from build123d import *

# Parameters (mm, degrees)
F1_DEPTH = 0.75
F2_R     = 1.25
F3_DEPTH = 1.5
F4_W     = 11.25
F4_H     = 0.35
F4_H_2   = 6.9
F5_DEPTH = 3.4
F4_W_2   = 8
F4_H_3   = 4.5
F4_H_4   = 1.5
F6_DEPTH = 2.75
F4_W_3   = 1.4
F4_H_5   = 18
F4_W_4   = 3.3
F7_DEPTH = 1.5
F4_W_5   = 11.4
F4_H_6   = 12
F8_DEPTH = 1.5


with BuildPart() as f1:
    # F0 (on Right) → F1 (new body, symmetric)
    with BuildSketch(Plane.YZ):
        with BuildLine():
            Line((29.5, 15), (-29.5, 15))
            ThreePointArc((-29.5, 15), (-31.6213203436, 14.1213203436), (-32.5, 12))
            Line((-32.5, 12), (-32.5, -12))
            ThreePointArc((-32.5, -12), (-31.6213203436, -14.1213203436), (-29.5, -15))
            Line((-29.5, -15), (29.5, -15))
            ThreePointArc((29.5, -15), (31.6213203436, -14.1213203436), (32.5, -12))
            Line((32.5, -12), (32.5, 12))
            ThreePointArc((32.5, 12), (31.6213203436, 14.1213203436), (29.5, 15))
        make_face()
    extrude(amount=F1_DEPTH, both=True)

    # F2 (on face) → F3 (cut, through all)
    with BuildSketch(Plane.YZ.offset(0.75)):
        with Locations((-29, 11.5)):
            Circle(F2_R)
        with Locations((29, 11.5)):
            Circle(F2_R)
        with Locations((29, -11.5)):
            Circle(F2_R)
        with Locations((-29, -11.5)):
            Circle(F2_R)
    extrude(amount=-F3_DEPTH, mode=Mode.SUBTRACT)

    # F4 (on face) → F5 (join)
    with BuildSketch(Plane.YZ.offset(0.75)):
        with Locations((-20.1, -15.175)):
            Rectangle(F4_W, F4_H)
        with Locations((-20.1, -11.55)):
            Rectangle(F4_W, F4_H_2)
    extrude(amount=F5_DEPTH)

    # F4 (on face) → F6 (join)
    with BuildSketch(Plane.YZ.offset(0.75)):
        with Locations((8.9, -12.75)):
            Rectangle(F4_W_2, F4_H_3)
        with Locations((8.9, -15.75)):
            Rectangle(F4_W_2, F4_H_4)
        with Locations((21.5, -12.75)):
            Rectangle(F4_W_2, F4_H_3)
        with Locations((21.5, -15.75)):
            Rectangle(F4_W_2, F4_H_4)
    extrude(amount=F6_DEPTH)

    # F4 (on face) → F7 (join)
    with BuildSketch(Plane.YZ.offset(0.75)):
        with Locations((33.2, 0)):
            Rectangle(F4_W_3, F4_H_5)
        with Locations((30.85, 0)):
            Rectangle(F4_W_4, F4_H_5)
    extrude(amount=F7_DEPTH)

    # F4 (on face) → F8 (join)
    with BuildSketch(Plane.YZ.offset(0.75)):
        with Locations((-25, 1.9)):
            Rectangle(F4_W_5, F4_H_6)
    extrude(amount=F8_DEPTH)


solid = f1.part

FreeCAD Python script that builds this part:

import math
import FreeCAD as App
import Part
import Sketcher

V = App.Vector
Q = App.Units.Quantity

doc = App.newDocument("Part")
body = doc.addObject("PartDesign::Body", "Body")

# Sketch on YZ plane
sketch1 = body.newObject("Sketcher::SketchObject", "Sketch")
sketch1.AttachmentSupport = (doc.getObject("YZ_Plane"), [""])
sketch1.MapMode = "FlatFace"
sketch1.addGeometry([
    Part.LineSegment(V(29.5, 15, 0), V(-29.5, 15, 0)),  # 0
    Part.ArcOfCircle(Part.Circle(V(-29.5, 12, 0), V(0, 0, 1), 3), math.radians(90), math.radians(180)),  # 1
    Part.LineSegment(V(-32.5, 12, 0), V(-32.5, -12, 0)),  # 2
    Part.ArcOfCircle(Part.Circle(V(-29.5, -12, 0), V(0, 0, 1), 3), math.radians(180), math.radians(270)),  # 3
    Part.LineSegment(V(-29.5, -15, 0), V(29.5, -15, 0)),  # 4
    Part.ArcOfCircle(Part.Circle(V(29.5, -12, 0), V(0, 0, 1), 3), math.radians(-90), math.radians(0)),  # 5
    Part.LineSegment(V(32.5, -12, 0), V(32.5, 12, 0)),  # 6
    Part.ArcOfCircle(Part.Circle(V(29.5, 12, 0), V(0, 0, 1), 3), math.radians(0), math.radians(90)),  # 7
], False)
sketch1.addConstraint([
    Sketcher.Constraint("Tangent", 0, 2, 1, 1),
    Sketcher.Constraint("Tangent", 1, 2, 2, 1),
    Sketcher.Constraint("Tangent", 2, 2, 3, 1),
    Sketcher.Constraint("Tangent", 3, 2, 4, 1),
    Sketcher.Constraint("Tangent", 4, 2, 5, 1),
    Sketcher.Constraint("Tangent", 5, 2, 6, 1),
    Sketcher.Constraint("Tangent", 6, 2, 7, 1),
    Sketcher.Constraint("Tangent", 7, 2, 0, 1),
    Sketcher.Constraint("Horizontal", 0),
    Sketcher.Constraint("Vertical", 2),
    Sketcher.Constraint("Horizontal", 4),
    Sketcher.Constraint("Vertical", 6),
    Sketcher.Constraint("Equal", 1, 3),
    Sketcher.Constraint("Equal", 3, 5),
    Sketcher.Constraint("Equal", 5, 7),
    Sketcher.Constraint("Symmetric", 1, 3, 5, 3, -1, 1),
    Sketcher.Constraint("Radius", 1, Q("3 mm")),
    Sketcher.Constraint("DistanceX", 0, 2, 0, 1, Q("59 mm")),
    Sketcher.Constraint("DistanceY", 2, 2, 2, 1, Q("24 mm")),
])
pad1 = body.newObject("PartDesign::Pad", "Pad")
pad1.Profile = sketch1
pad1.Length = 1.5
pad1.Midplane = True

# Sketch on YZ plane
sketch2 = body.newObject("Sketcher::SketchObject", "Sketch001")
sketch2.AttachmentSupport = (doc.getObject("YZ_Plane"), [""])
sketch2.MapMode = "FlatFace"
sketch2.AttachmentOffset = App.Placement(V(0, 0, 0.75), App.Rotation())
sketch2.addGeometry([
    Part.Circle(V(-29, 11.5, 0), V(0, 0, 1), 1.2),
    Part.Circle(V(29, 11.5, 0), V(0, 0, 1), 1.2),
    Part.Circle(V(29, -11.5, 0), V(0, 0, 1), 1.2),
    Part.Circle(V(-29, -11.5, 0), V(0, 0, 1), 1.2),
], False)
sketch2.addConstraint([
    Sketcher.Constraint("Equal", 0, 1),
    Sketcher.Constraint("Equal", 1, 2),
    Sketcher.Constraint("Equal", 2, 3),
    Sketcher.Constraint("Symmetric", 0, 3, 2, 3, -1, 1),
    Sketcher.Constraint("Symmetric", 1, 3, 3, 3, -1, 1),
    Sketcher.Constraint("Symmetric", 0, 3, 1, 3, -2),
    Sketcher.Constraint("Diameter", 0, Q("2.5 mm")),
    Sketcher.Constraint("DistanceX", 0, 3, -1, 1, Q("29 mm")),
    Sketcher.Constraint("DistanceY", 2, 3, 1, 3, Q("23 mm")),
])
pocket1 = body.newObject("PartDesign::Pocket", "Pocket")
pocket1.Profile = sketch2
pocket1.Type = "ThroughAll"

# Sketch on YZ plane
sketch3 = body.newObject("Sketcher::SketchObject", "Sketch002")
sketch3.AttachmentSupport = (doc.getObject("YZ_Plane"), [""])
sketch3.MapMode = "FlatFace"
sketch3.AttachmentOffset = App.Placement(V(0, 0, 0.75), App.Rotation())
sketch3.addGeometry([
    Part.LineSegment(V(-26, -15, 0), V(-14, -15, 0)),
    Part.LineSegment(V(-14, -15, 0), V(-14, -8, 0)),
    Part.LineSegment(V(-14, -8, 0), V(-26, -8, 0)),
    Part.LineSegment(V(-26, -8, 0), V(-26, -15, 0)),
], False)
sketch3.addConstraint([
    Sketcher.Constraint("Coincident", 0, 2, 1, 1),
    Sketcher.Constraint("Coincident", 1, 2, 2, 1),
    Sketcher.Constraint("Coincident", 2, 2, 3, 1),
    Sketcher.Constraint("Coincident", 3, 2, 0, 1),
    Sketcher.Constraint("Horizontal", 0),
    Sketcher.Constraint("Vertical", 1),
    Sketcher.Constraint("Horizontal", 2),
    Sketcher.Constraint("Vertical", 3),
    Sketcher.Constraint("DistanceX", 0, 1, 0, 2, Q("11.25 mm")),
    Sketcher.Constraint("DistanceY", 1, 1, 1, 2, Q("7.25 mm")),
    Sketcher.Constraint("DistanceY", 1, 2, -1, 1, Q("8.1 mm")),
    Sketcher.Constraint("DistanceX", 0, 2, -1, 1, Q("14.475 mm")),
])
pad2 = body.newObject("PartDesign::Pad", "Pad001")
pad2.Profile = sketch3
pad2.Length = 3.4

# Sketch on YZ plane
sketch4 = body.newObject("Sketcher::SketchObject", "Sketch003")
sketch4.AttachmentSupport = (doc.getObject("YZ_Plane"), [""])
sketch4.MapMode = "FlatFace"
sketch4.AttachmentOffset = App.Placement(V(0, 0, 0.75), App.Rotation())
sketch4.addGeometry([
    Part.LineSegment(V(5, -10, 0), V(5, -16, 0)),  # 0
    Part.LineSegment(V(5, -16, 0), V(13, -16, 0)),  # 1
    Part.LineSegment(V(13, -16, 0), V(13, -10, 0)),  # 2
    Part.LineSegment(V(13, -10, 0), V(5, -10, 0)),  # 3
    Part.LineSegment(V(18, -10, 0), V(18, -16, 0)),  # 4
    Part.LineSegment(V(18, -16, 0), V(26, -16, 0)),  # 5
    Part.LineSegment(V(26, -16, 0), V(26, -10, 0)),  # 6
    Part.LineSegment(V(26, -10, 0), V(18, -10, 0)),  # 7
], False)
sketch4.addConstraint([
    Sketcher.Constraint("Coincident", 0, 2, 1, 1),
    Sketcher.Constraint("Coincident", 1, 2, 2, 1),
    Sketcher.Constraint("Coincident", 2, 2, 3, 1),
    Sketcher.Constraint("Coincident", 3, 2, 0, 1),
    Sketcher.Constraint("Coincident", 4, 2, 5, 1),
    Sketcher.Constraint("Coincident", 5, 2, 6, 1),
    Sketcher.Constraint("Coincident", 6, 2, 7, 1),
    Sketcher.Constraint("Coincident", 7, 2, 4, 1),
    Sketcher.Constraint("Vertical", 0),
    Sketcher.Constraint("Horizontal", 1),
    Sketcher.Constraint("Vertical", 2),
    Sketcher.Constraint("Horizontal", 3),
    Sketcher.Constraint("Vertical", 4),
    Sketcher.Constraint("Horizontal", 5),
    Sketcher.Constraint("Vertical", 6),
    Sketcher.Constraint("Horizontal", 7),
    Sketcher.Constraint("Horizontal", 1, 2, 4, 2),
    Sketcher.Constraint("Horizontal", 3, 2, 6, 2),
    Sketcher.Constraint("Equal", 3, 5),
    Sketcher.Constraint("DistanceX", 1, 1, 1, 2, Q("8 mm")),
    Sketcher.Constraint("DistanceY", 0, 2, 0, 1, Q("6 mm")),
    Sketcher.Constraint("DistanceX", -1, 1, 0, 2, Q("4.9 mm")),
    Sketcher.Constraint("DistanceY", 0, 2, -1, 1, Q("16.5 mm")),
    Sketcher.Constraint("DistanceX", -1, 1, 4, 2, Q("17.5 mm")),
])
pad3 = body.newObject("PartDesign::Pad", "Pad002")
pad3.Profile = sketch4
pad3.Length = 2.75

# Sketch on YZ plane
sketch5 = body.newObject("Sketcher::SketchObject", "Sketch004")
sketch5.AttachmentSupport = (doc.getObject("YZ_Plane"), [""])
sketch5.MapMode = "FlatFace"
sketch5.AttachmentOffset = App.Placement(V(0, 0, 0.75), App.Rotation())
sketch5.addGeometry([
    Part.LineSegment(V(33.9, -9, 0), V(33.9, 9, 0)),
    Part.LineSegment(V(33.9, 9, 0), V(29.2, 9, 0)),
    Part.LineSegment(V(29.2, 9, 0), V(29.2, -9, 0)),
    Part.LineSegment(V(29.2, -9, 0), V(33.9, -9, 0)),
], False)
sketch5.addConstraint([
    Sketcher.Constraint("Coincident", 0, 2, 1, 1),
    Sketcher.Constraint("Coincident", 1, 2, 2, 1),
    Sketcher.Constraint("Coincident", 2, 2, 3, 1),
    Sketcher.Constraint("Coincident", 3, 2, 0, 1),
    Sketcher.Constraint("Vertical", 0),
    Sketcher.Constraint("Horizontal", 1),
    Sketcher.Constraint("Vertical", 2),
    Sketcher.Constraint("Horizontal", 3),
    Sketcher.Constraint("DistanceY", 0, 1, 0, 2, Q("18 mm")),
    Sketcher.Constraint("DistanceX", 1, 2, 1, 1, Q("4.7 mm")),
    Sketcher.Constraint("DistanceY", -1, 1, 0, 2, Q("9 mm")),
    Sketcher.Constraint("DistanceX", -1, 1, 0, 2, Q("33.9 mm")),
])
pad4 = body.newObject("PartDesign::Pad", "Pad003")
pad4.Profile = sketch5
pad4.Length = 1.5

# Sketch on YZ plane
sketch6 = body.newObject("Sketcher::SketchObject", "Sketch005")
sketch6.AttachmentSupport = (doc.getObject("YZ_Plane"), [""])
sketch6.MapMode = "FlatFace"
sketch6.AttachmentOffset = App.Placement(V(0, 0, 0.75), App.Rotation())
sketch6.addGeometry([
    Part.LineSegment(V(-31, 8, 0), V(-31, -4, 0)),
    Part.LineSegment(V(-31, -4, 0), V(-19, -4, 0)),
    Part.LineSegment(V(-19, -4, 0), V(-19, 8, 0)),
    Part.LineSegment(V(-19, 8, 0), V(-31, 8, 0)),
], False)
sketch6.addConstraint([
    Sketcher.Constraint("Coincident", 0, 2, 1, 1),
    Sketcher.Constraint("Coincident", 1, 2, 2, 1),
    Sketcher.Constraint("Coincident", 2, 2, 3, 1),
    Sketcher.Constraint("Coincident", 3, 2, 0, 1),
    Sketcher.Constraint("Vertical", 0),
    Sketcher.Constraint("Horizontal", 1),
    Sketcher.Constraint("Vertical", 2),
    Sketcher.Constraint("Horizontal", 3),
    Sketcher.Constraint("DistanceY", 0, 2, 0, 1, Q("12 mm")),
    Sketcher.Constraint("DistanceX", 1, 1, 1, 2, Q("11.4 mm")),
    Sketcher.Constraint("DistanceX", 0, 2, -1, 1, Q("30.7 mm")),
    Sketcher.Constraint("DistanceY", 0, 2, -1, 1, Q("4.1 mm")),
])
pad5 = body.newObject("PartDesign::Pad", "Pad004")
pad5.Profile = sketch6
pad5.Length = 1.5

doc.recompute()
